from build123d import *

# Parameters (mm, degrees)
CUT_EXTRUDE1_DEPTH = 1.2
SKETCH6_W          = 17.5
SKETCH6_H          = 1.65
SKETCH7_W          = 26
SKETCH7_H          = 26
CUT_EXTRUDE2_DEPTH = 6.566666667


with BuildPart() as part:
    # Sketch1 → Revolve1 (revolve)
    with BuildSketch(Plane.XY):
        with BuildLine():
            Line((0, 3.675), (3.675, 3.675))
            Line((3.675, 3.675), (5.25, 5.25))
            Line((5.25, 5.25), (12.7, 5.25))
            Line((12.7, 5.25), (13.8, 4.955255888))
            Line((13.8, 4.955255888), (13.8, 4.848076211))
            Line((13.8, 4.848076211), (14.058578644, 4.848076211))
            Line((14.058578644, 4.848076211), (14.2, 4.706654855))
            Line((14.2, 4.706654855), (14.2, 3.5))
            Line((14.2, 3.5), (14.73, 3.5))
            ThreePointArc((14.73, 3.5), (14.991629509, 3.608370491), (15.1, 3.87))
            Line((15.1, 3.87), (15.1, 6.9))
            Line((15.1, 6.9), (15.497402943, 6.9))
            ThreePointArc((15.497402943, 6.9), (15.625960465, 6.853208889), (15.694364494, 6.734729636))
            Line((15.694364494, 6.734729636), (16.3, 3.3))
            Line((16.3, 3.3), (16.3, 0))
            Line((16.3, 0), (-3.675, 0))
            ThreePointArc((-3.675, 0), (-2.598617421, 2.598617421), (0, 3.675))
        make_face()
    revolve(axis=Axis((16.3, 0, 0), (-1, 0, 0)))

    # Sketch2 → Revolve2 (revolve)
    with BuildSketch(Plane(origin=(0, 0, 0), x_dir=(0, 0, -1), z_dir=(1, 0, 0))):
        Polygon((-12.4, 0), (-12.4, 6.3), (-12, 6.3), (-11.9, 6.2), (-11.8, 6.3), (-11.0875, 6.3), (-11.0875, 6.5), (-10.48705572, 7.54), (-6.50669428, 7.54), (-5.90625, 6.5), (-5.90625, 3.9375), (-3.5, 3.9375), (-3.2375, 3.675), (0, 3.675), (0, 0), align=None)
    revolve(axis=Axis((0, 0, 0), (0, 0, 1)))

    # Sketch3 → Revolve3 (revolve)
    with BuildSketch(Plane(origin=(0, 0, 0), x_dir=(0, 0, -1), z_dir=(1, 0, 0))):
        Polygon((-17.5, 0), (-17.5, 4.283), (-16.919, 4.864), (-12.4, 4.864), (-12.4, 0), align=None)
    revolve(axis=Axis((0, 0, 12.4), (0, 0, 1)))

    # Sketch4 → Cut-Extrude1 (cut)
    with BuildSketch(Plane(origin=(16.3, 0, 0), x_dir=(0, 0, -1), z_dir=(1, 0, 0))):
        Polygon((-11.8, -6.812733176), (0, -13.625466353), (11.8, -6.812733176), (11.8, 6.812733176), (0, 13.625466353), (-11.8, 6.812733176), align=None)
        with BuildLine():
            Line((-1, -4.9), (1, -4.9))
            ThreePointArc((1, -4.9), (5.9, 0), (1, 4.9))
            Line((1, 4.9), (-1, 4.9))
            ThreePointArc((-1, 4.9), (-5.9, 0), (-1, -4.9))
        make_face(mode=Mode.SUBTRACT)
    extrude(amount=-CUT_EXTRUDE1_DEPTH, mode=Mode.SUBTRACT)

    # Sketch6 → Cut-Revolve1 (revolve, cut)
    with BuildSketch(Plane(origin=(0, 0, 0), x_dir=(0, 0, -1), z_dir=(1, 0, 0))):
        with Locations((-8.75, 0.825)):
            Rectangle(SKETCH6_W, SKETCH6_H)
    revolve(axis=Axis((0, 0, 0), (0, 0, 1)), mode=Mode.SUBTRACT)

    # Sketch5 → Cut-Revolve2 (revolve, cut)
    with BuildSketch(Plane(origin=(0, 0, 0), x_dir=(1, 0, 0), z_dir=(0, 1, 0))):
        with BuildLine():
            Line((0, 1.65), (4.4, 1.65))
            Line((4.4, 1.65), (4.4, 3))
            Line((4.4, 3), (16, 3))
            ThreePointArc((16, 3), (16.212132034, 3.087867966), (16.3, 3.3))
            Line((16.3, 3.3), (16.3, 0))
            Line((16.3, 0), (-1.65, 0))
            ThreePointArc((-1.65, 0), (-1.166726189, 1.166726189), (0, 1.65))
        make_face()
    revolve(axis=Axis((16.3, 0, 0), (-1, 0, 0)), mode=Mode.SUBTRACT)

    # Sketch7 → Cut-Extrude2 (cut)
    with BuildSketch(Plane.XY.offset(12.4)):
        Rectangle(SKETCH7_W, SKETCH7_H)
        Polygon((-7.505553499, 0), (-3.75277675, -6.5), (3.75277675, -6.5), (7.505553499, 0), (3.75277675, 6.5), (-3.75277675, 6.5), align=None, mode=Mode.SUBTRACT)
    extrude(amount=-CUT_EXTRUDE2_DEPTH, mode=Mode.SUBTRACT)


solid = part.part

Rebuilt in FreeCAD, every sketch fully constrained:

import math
import FreeCAD as App
import Part
import Sketcher
from FreeCAD import Vector
Q = App.Units.Quantity


def add_polygon(sketch, points):
    """Adds a closed chain of lines whose ends are joined by coincident constraints."""
    first, n = sketch.GeometryCount, len(points)
    for a, b in zip(points, points[1:] + points[:1]):
        sketch.addGeometry(Part.LineSegment(App.Vector(*a, 0), App.Vector(*b, 0)), False)
    for i in range(n):
        sketch.addConstraint(Sketcher.Constraint("Coincident", first + i, 2, first + (i + 1) % n, 1))

doc = App.newDocument("Part")
body = doc.addObject("PartDesign::Body", "Body")

# Sketch on XY plane
sketch1 = body.newObject("Sketcher::SketchObject", "Sketch")
sketch1.AttachmentSupport = (doc.getObject("XY_Plane"), [""])
sketch1.MapMode = "FlatFace"
sketch1.addGeometry(Part.LineSegment(Vector(3.67, 3.67, 0), Vector(0, 3.67, 0)), False)
sketch1.addGeometry(Part.ArcOfCircle(Part.Circle(Vector(0, 0, 0), Vector(0, 0, 1), 3.67), math.radians(90), math.radians(180)), False)
sketch1.addGeometry(Part.LineSegment(Vector(-3.67, 0, 0), Vector(16.3, 0, 0)), False)
sketch1.addGeometry(Part.LineSegment(Vector(16.3, 0, 0), Vector(16.3, 3.3, 0)), False)
sketch1.addGeometry(Part.LineSegment(Vector(16.3, 3.3, 0), Vector(15.69, 6.73, 0)), False)
sketch1.addGeometry(Part.ArcOfCircle(Part.Circle(Vector(15.5, 6.7, 0), Vector(0, 0, 1), 0.2), math.radians(10), math.radians(90)), False)
sketch1.addGeometry(Part.LineSegment(Vector(15.5, 6.9, 0), Vector(15.1, 6.9, 0)), False)
sketch1.addGeometry(Part.LineSegment(Vector(15.1, 6.9, 0), Vector(15.1, 3.87, 0)), False)
sketch1.addGeometry(Part.ArcOfCircle(Part.Circle(Vector(14.73, 3.87, 0), Vector(0, 0, 1), 0.37), math.radians(-90), math.radians(0)), False)
sketch1.addGeometry(Part.LineSegment(Vector(14.73, 3.5, 0), Vector(14.2, 3.5, 0)), False)
sketch1.addGeometry(Part.LineSegment(Vector(14.2, 3.5, 0), Vector(14.2, 4.71, 0)), False)
sketch1.addGeometry(Part.LineSegment(Vector(14.2, 4.71, 0), Vector(14.06, 4.85, 0)), False)
sketch1.addGeometry(Part.LineSegment(Vector(14.06, 4.85, 0), Vector(13.8, 4.85, 0)), False)
sketch1.addGeometry(Part.LineSegment(Vector(13.8, 4.85, 0), Vector(13.8, 4.96, 0)), False)
sketch1.addGeometry(Part.LineSegment(Vector(13.8, 4.96, 0), Vector(12.7, 5.25, 0)), False)
sketch1.addGeometry(Part.LineSegment(Vector(12.7, 5.25, 0), Vector(5.25, 5.25, 0)), False)
sketch1.addGeometry(Part.LineSegment(Vector(5.25, 5.25, 0), Vector(3.67, 3.67, 0)), False)
sketch1.addConstraint(Sketcher.Constraint("Tangent", 0, 2, 1, 1))
sketch1.addConstraint(Sketcher.Constraint("Coincident", 1, 2, 2, 1))
sketch1.addConstraint(Sketcher.Constraint("Coincident", 2, 2, 3, 1))
sketch1.addConstraint(Sketcher.Constraint("Coincident", 3, 2, 4, 1))
sketch1.addConstraint(Sketcher.Constraint("Tangent", 4, 2, 5, 1))
sketch1.addConstraint(Sketcher.Constraint("Tangent", 5, 2, 6, 1))
sketch1.addConstraint(Sketcher.Constraint("Coincident", 6, 2, 7, 1))
sketch1.addConstraint(Sketcher.Constraint("Tangent", 7, 2, 8, 2))
sketch1.addConstraint(Sketcher.Constraint("Tangent", 8, 1, 9, 1))
sketch1.addConstraint(Sketcher.Constraint("Coincident", 9, 2, 10, 1))
sketch1.addConstraint(Sketcher.Constraint("Coincident", 10, 2, 11, 1))
sketch1.addConstraint(Sketcher.Constraint("Coincident", 11, 2, 12, 1))
sketch1.addConstraint(Sketcher.Constraint("Coincident", 12, 2, 13, 1))
sketch1.addConstraint(Sketcher.Constraint("Coincident", 13, 2, 14, 1))
sketch1.addConstraint(Sketcher.Constraint("Coincident", 14, 2, 15, 1))
sketch1.addConstraint(Sketcher.Constraint("Coincident", 15, 2, 16, 1))
sketch1.addConstraint(Sketcher.Constraint("Coincident", 16, 2, 0, 1))
sketch1.addConstraint(Sketcher.Constraint("Horizontal", 0))
sketch1.addConstraint(Sketcher.Constraint("Horizontal", 2))
sketch1.addConstraint(Sketcher.Constraint("Vertical", 3))
sketch1.addConstraint(Sketcher.Constraint("Horizontal", 6))
sketch1.addConstraint(Sketcher.Constraint("Vertical", 7))
sketch1.addConstraint(Sketcher.Constraint("Horizontal", 9))
sketch1.addConstraint(Sketcher.Constraint("Vertical", 10))
sketch1.addConstraint(Sketcher.Constraint("Horizontal", 12))
sketch1.addConstraint(Sketcher.Constraint("Vertical", 13))
sketch1.addConstraint(Sketcher.Constraint("Horizontal", 15))
sketch1.addConstraint(Sketcher.Constraint("Coincident", 1, 3, -1, 1))
sketch1.addConstraint(Sketcher.Constraint("PointOnObject", 1, 2, -1))
sketch1.addConstraint(Sketcher.Constraint("Perpendicular", 11, 16))
sketch1.addConstraint(Sketcher.Constraint("Radius", 5, 0.2))
sketch1.addConstraint(Sketcher.Constraint("Angle", 4, Q("100 deg")))
sketch1.addConstraint(Sketcher.Constraint("Angle", 11, Q("135 deg")))
sketch1.addConstraint(Sketcher.Constraint("Angle", 14, Q("165 deg")))
sketch1.addConstraint(Sketcher.Constraint("Radius", 8, 0.37))
sketch1.addConstraint(Sketcher.Constraint("DistanceY", 3, 1, 3, 2, 3.3))
sketch1.addConstraint(Sketcher.Constraint("Radius", 1, 3.675))
sketch1.addConstraint(Sketcher.Constraint("Distance", 11, 0.2))
sketch1.addConstraint(Sketcher.Constraint("DistanceX", 9, 2, 9, 1, 0.53))
sketch1.addConstraint(Sketcher.Constraint("DistanceX", 15, 2, 15, 1, 7.45))
sketch1.addConstraint(Sketcher.Constraint("DistanceY", 7, 2, 7, 1, 3.03))
sketch1.addConstraint(Sketcher.Constraint("DistanceY", -1, 1, 5, 3, 6.7))
sketch1.addConstraint(Sketcher.Constraint("DistanceX", -1, 1, 2, 2, 16.3))
sketch1.addConstraint(Sketcher.Constraint("DistanceX", -1, 1, 6, 2, 15.1))
sketch1.addConstraint(Sketcher.Constraint("DistanceX", -1, 1, 12, 2, 13.8))
sketch1.addConstraint(Sketcher.Constraint("DistanceX", -1, 1, 14, 2, 12.7))
sketch1.addConstraint(Sketcher.Constraint("DistanceX", 0, 2, 0, 1, 3.675))
sketch1.addConstraint(Sketcher.Constraint("DistanceY", 13, 1, 13, 2, 0.10718))
revolution = body.newObject("PartDesign::Revolution", "Revolution")
revolution.Profile = sketch1
revolution.ReferenceAxis = (sketch1, ["H_Axis"])
revolution.Angle = 360

# Sketch on YZ plane
sketch2 = body.newObject("Sketcher::SketchObject", "Sketch001")
sketch2.AttachmentSupport = (doc.getObject("YZ_Plane"), [""])
sketch2.MapMode = "FlatFace"
add_polygon(sketch2, [(6.3, 12.4), (0, 12.4), (0, 0), (3.67, 0), (3.67, 3.24), (3.94, 3.5), (3.94, 5.91), (6.5, 5.91), (7.54, 6.51), (7.54, 10.49), (6.5, 11.09), (6.3, 11.09), (6.3, 11.8), (6.2, 11.9), (6.3, 12)])  # lines 0-14
sketch2.addConstraint(Sketcher.Constraint("Horizontal", 0))
sketch2.addConstraint(Sketcher.Constraint("Vertical", 1))
sketch2.addConstraint(Sketcher.Constraint("Horizontal", 2))
sketch2.addConstraint(Sketcher.Constraint("Vertical", 3))
sketch2.addConstraint(Sketcher.Constraint("Vertical", 5))
sketch2.addConstraint(Sketcher.Constraint("Horizontal", 6))
sketch2.addConstraint(Sketcher.Constraint("Vertical", 8))
sketch2.addConstraint(Sketcher.Constraint("Horizontal", 10))
sketch2.addConstraint(Sketcher.Constraint("Vertical", 11))
sketch2.addConstraint(Sketcher.Constraint("Vertical", 14))
sketch2.addConstraint(Sketcher.Constraint("Coincident", 1, 2, -1, 1))
sketch2.addConstraint(Sketcher.Constraint("Perpendicular", 4, 12))
sketch2.addConstraint(Sketcher.Constraint("Perpendicular", 12, 13))
sketch2.addConstraint(Sketcher.Constraint("Vertical", 6, 2, 9, 2))
sketch2.addConstraint(Sketcher.Constraint("Vertical", 11, 2, 13, 2))
sketch2.addConstraint(Sketcher.Constraint("Equal", 7, 9))
sketch2.addConstraint(Sketcher.Constraint("Equal", 12, 13))
sketch2.addConstraint(Sketcher.Constraint("Angle", 7, Q("30 deg")))
sketch2.addConstraint(Sketcher.Constraint("DistanceX", 0, 2, 0, 1, 6.3))
sketch2.addConstraint(Sketcher.Constraint("DistanceX", 10, 2, 10, 1, 0.2))
sketch2.addConstraint(Sketcher.Constraint("DistanceY", 1, 2, 1, 1, 12.4))
sketch2.addConstraint(Sketcher.Constraint("DistanceY", 14, 1, 14, 2, 0.4))
sketch2.addConstraint(Sketcher.Constraint("DistanceY", -1, 1, 4, 2, 3.5))
sketch2.addConstraint(Sketcher.Constraint("DistanceY", -1, 1, 11, 2, 11.8))
sketch2.addConstraint(Sketcher.Constraint("DistanceX", 2, 1, 2, 2, 3.675))
sketch2.addConstraint(Sketcher.Constraint("DistanceX", -1, 1, 7, 2, 7.54))
sketch2.addConstraint(Sketcher.Constraint("DistanceX", 6, 1, 6, 2, 2.5625))
sketch2.addConstraint(Sketcher.Constraint("DistanceY", 11, 1, 11, 2, 0.7125))
sketch2.addConstraint(Sketcher.Constraint("DistanceY", 5, 1, 5, 2, 2.40625))
revolution2 = body.newObject("PartDesign::Revolution", "Revolution001")
revolution2.Profile = sketch2
revolution2.ReferenceAxis = (sketch2, ["V_Axis"])
revolution2.Angle = 360

# Sketch on YZ plane
sketch3 = body.newObject("Sketcher::SketchObject", "Sketch002")
sketch3.AttachmentSupport = (doc.getObject("YZ_Plane"), [""])
sketch3.MapMode = "FlatFace"
add_polygon(sketch3, [(4.3, 17.5), (0, 17.5), (0, 12.4), (4.9, 12.4), (4.9, 16.9)])  # lines 0-4
sketch3.addConstraint(Sketcher.Constraint("Horizontal", 0))
sketch3.addConstraint(Sketcher.Constraint("Vertical", 1))
sketch3.addConstraint(Sketcher.Constraint("Horizontal", 2))
sketch3.addConstraint(Sketcher.Constraint("Vertical", 3))
sketch3.addConstraint(Sketcher.Constraint("PointOnObject", 0, 2, -2))
sketch3.addConstraint(Sketcher.Constraint("Angle", 4, Q("135 deg")))
sketch3.addConstraint(Sketcher.Constraint("DistanceY", 1, 2, 1, 1, 5.1))
sketch3.addConstraint(Sketcher.Constraint("DistanceY", -1, 1, 0, 2, 17.5))
sketch3.addConstraint(Sketcher.Constraint("DistanceX", 0, 2, 0, 1, 4.283))
sketch3.addConstraint(Sketcher.Constraint("DistanceX", 2, 1, 2, 2, 4.864))
revolution3 = body.newObject("PartDesign::Revolution", "Revolution002")
revolution3.Profile = sketch3
revolution3.ReferenceAxis = (sketch3, ["V_Axis"])
revolution3.Angle = 360

# Sketch on YZ plane
sketch4 = body.newObject("Sketcher::SketchObject", "Sketch003")
sketch4.AttachmentSupport = (doc.getObject("YZ_Plane"), [""])
sketch4.MapMode = "FlatFace"
sketch4.AttachmentOffset = App.Placement(Vector(0, 0, 16.3), App.Rotation())
add_polygon(sketch4, [(-6.8, 11.8), (-13.6, 0), (-6.8, -11.8), (6.8, -11.8), (13.6, 0), (6.8, 11.8)])  # lines 0-5
sketch4.addGeometry(Part.LineSegment(Vector(-4.9, -1, 0), Vector(-4.9, 1, 0)), False)  # 6
sketch4.addGeometry(Part.ArcOfCircle(Part.Circle(Vector(0, 1, 0), Vector(0, 0, 1), 4.9), math.radians(0), math.radians(180)), False)  # 7
sketch4.addGeometry(Part.LineSegment(Vector(4.9, 1, 0), Vector(4.9, -1, 0)), False)  # 8
sketch4.addGeometry(Part.ArcOfCircle(Part.Circle(Vector(0, -1, 0), Vector(0, 0, 1), 4.9), math.radians(180), math.radians(360)), False)  # 9
sketch4.addConstraint(Sketcher.Constraint("Tangent", 6, 2, 7, 2))
sketch4.addConstraint(Sketcher.Constraint("Tangent", 7, 1, 8, 1))
sketch4.addConstraint(Sketcher.Constraint("Tangent", 8, 2, 9, 2))
sketch4.addConstraint(Sketcher.Constraint("Tangent", 9, 1, 6, 1))
sketch4.addConstraint(Sketcher.Constraint("Horizontal", 2))
sketch4.addConstraint(Sketcher.Constraint("Horizontal", 5))
sketch4.addConstraint(Sketcher.Constraint("Vertical", 6))
sketch4.addConstraint(Sketcher.Constraint("Vertical", 8))
sketch4.addConstraint(Sketcher.Constraint("Symmetric", 7, 3, 9, 3, -1, 1))
sketch4.addConstraint(Sketcher.Constraint("Symmetric", 0, 2, 3, 2, -1, 1))
sketch4.addConstraint(Sketcher.Constraint("Symmetric", 1, 2, 4, 2, -1, 1))
sketch4.addConstraint(Sketcher.Constraint("PointOnObject", 0, 2, -1))
sketch4.addConstraint(Sketcher.Constraint("Parallel", 0, 3))
sketch4.addConstraint(Sketcher.Constraint("Vertical", 2, 2, 4, 2))
sketch4.addConstraint(Sketcher.Constraint("Radius", 7, 4.9))
sketch4.addConstraint(Sketcher.Constraint("DistanceY", 6, 1, 6, 2, 2.0))
sketch4.addConstraint(Sketcher.Constraint("Angle", 0, Q("-120 deg")))
sketch4.addConstraint(Sketcher.Constraint("DistanceY", 1, 2, -1, 1, 11.8))
sketch4.addConstraint(Sketcher.Constraint("DistanceX", 0, 2, 2, 2, 20.4382))
pocket1 = body.newObject("PartDesign::Pocket", "Pocket")
pocket1.Profile = sketch4
pocket1.Length = 1.2

# Sketch on YZ plane
sketch5 = body.newObject("Sketcher::SketchObject", "Sketch004")
sketch5.AttachmentSupport = (doc.getObject("YZ_Plane"), [""])
sketch5.MapMode = "FlatFace"
add_polygon(sketch5, [(1.6, 17.5), (0, 17.5), (0, 0), (1.6, 0)])  # lines 0-3
sketch5.addConstraint(Sketcher.Constraint("Horizontal", 0))
sketch5.addConstraint(Sketcher.Constraint("Vertical", 1))
sketch5.addConstraint(Sketcher.Constraint("Horizontal", 2))
sketch5.addConstraint(Sketcher.Constraint("Vertical", 3))
sketch5.addConstraint(Sketcher.Constraint("Coincident", 1, 2, -1, 1))
sketch5.addConstraint(Sketcher.Constraint("DistanceY", 1, 2, 1, 1, 17.5))
sketch5.addConstraint(Sketcher.Constraint("DistanceX", 0, 2, 0, 1, 1.65))
groove = body.newObject("PartDesign::Groove", "Groove")
groove.Profile = sketch5
groove.ReferenceAxis = (sketch5, ["V_Axis"])
groove.Angle = 360

# Sketch on XZ plane
sketch6 = body.newObject("Sketcher::SketchObject", "Sketch005")
sketch6.AttachmentSupport = (doc.getObject("XZ_Plane"), [""])
sketch6.MapMode = "FlatFace"
sketch6.addGeometry(Part.LineSegment(Vector(4.4, -1.65, 0), Vector(0, -1.65, 0)), False)
sketch6.addGeometry(Part.ArcOfCircle(Part.Circle(Vector(0, 0, 0), Vector(0, 0, 1), 1.65), math.radians(180), math.radians(270)), False)
sketch6.addGeometry(Part.LineSegment(Vector(-1.65, 0, 0), Vector(16.3, 0, 0)), False)
sketch6.addGeometry(Part.LineSegment(Vector(16.3, 0, 0), Vector(16.3, -3.3, 0)), False)
sketch6.addGeometry(Part.ArcOfCircle(Part.Circle(Vector(16, -3.3, 0), Vector(0, 0, 1), 0.3), math.radians(0), math.radians(90)), False)
sketch6.addGeometry(Part.LineSegment(Vector(16, -3, 0), Vector(4.4, -3, 0)), False)
sketch6.addGeometry(Part.LineSegment(Vector(4.4, -3, 0), Vector(4.4, -1.65, 0)), False)
sketch6.addConstraint(Sketcher.Constraint("Tangent", 0, 2, 1, 2))
sketch6.addConstraint(Sketcher.Constraint("Coincident", 1, 1, 2, 1))
sketch6.addConstraint(Sketcher.Constraint("Coincident", 2, 2, 3, 1))
sketch6.addConstraint(Sketcher.Constraint("Tangent", 3, 2, 4, 1))
sketch6.addConstraint(Sketcher.Constraint("Tangent", 4, 2, 5, 1))
sketch6.addConstraint(Sketcher.Constraint("Coincident", 5, 2, 6, 1))
sketch6.addConstraint(Sketcher.Constraint("Coincident", 6, 2, 0, 1))
sketch6.addConstraint(Sketcher.Constraint("Horizontal", 0))
sketch6.addConstraint(Sketcher.Constraint("Horizontal", 2))
sketch6.addConstraint(Sketcher.Constraint("Vertical", 3))
sketch6.addConstraint(Sketcher.Constraint("Horizontal", 5))
sketch6.addConstraint(Sketcher.Constraint("Vertical", 6))
sketch6.addConstraint(Sketcher.Constraint("Coincident", 1, 3, -1, 1))
sketch6.addConstraint(Sketcher.Constraint("PointOnObject", 1, 1, -1))
sketch6.addConstraint(Sketcher.Constraint("Radius", 4, 0.3))
sketch6.addConstraint(Sketcher.Constraint("Radius", 1, 1.65))
sketch6.addConstraint(Sketcher.Constraint("DistanceX", 0, 2, 0, 1, 4.4))
sketch6.addConstraint(Sketcher.Constraint("DistanceX", 5, 2, 5, 1, 11.6))
sketch6.addConstraint(Sketcher.Constraint("DistanceY", 3, 2, 3, 1, 3.3))
groove2 = body.newObject("PartDesign::Groove", "Groove001")
groove2.Profile = sketch6
groove2.ReferenceAxis = (sketch6, ["H_Axis"])
groove2.Angle = 360

# Sketch on XY plane
sketch7 = body.newObject("Sketcher::SketchObject", "Sketch006")
sketch7.AttachmentSupport = (doc.getObject("XY_Plane"), [""])
sketch7.MapMode = "FlatFace"
sketch7.AttachmentOffset = App.Placement(Vector(0, 0, 12.4), App.Rotation())
add_polygon(sketch7, [(-13, 13), (-13, -13), (13, -13), (13, 13)])  # lines 0-3
add_polygon(sketch7, [(-4, -6), (-8, 0), (-4, 6), (4, 6), (8, 0), (4, -6)])  # lines 4-9
sketch7.addConstraint(Sketcher.Constraint("Vertical", 0))
sketch7.addConstraint(Sketcher.Constraint("Horizontal", 1))
sketch7.addConstraint(Sketcher.Constraint("Vertical", 2))
sketch7.addConstraint(Sketcher.Constraint("Horizontal", 3))
sketch7.addConstraint(Sketcher.Constraint("Horizontal", 6))
sketch7.addConstraint(Sketcher.Constraint("Horizontal", 9))
sketch7.addConstraint(Sketcher.Constraint("Symmetric", 0, 2, 2, 2, -1, 1))
sketch7.addConstraint(Sketcher.Constraint("Symmetric", 4, 2, 7, 2, -1, 1))
sketch7.addConstraint(Sketcher.Constraint("Symmetric", 5, 2, 8, 2, -1, 1))
sketch7.addConstraint(Sketcher.Constraint("PointOnObject", 4, 2, -1))
sketch7.addConstraint(Sketcher.Constraint("Parallel", 4, 7))
sketch7.addConstraint(Sketcher.Constraint("Vertical", 6, 2, 8, 2))
sketch7.addConstraint(Sketcher.Constraint("Equal", 3, 0))
sketch7.addConstraint(Sketcher.Constraint("DistanceX", 1, 1, 1, 2, 26.0))
sketch7.addConstraint(Sketcher.Constraint("Angle", 4, Q("120 deg")))
sketch7.addConstraint(Sketcher.Constraint("DistanceY", 8, 2, 6, 2, 13.0))
sketch7.addConstraint(Sketcher.Constraint("DistanceX", 6, 1, 6, 2, 7.505554))
pocket2 = body.newObject("PartDesign::Pocket", "Pocket001")
pocket2.Profile = sketch7
pocket2.Length = 6.566667

doc.recompute()
